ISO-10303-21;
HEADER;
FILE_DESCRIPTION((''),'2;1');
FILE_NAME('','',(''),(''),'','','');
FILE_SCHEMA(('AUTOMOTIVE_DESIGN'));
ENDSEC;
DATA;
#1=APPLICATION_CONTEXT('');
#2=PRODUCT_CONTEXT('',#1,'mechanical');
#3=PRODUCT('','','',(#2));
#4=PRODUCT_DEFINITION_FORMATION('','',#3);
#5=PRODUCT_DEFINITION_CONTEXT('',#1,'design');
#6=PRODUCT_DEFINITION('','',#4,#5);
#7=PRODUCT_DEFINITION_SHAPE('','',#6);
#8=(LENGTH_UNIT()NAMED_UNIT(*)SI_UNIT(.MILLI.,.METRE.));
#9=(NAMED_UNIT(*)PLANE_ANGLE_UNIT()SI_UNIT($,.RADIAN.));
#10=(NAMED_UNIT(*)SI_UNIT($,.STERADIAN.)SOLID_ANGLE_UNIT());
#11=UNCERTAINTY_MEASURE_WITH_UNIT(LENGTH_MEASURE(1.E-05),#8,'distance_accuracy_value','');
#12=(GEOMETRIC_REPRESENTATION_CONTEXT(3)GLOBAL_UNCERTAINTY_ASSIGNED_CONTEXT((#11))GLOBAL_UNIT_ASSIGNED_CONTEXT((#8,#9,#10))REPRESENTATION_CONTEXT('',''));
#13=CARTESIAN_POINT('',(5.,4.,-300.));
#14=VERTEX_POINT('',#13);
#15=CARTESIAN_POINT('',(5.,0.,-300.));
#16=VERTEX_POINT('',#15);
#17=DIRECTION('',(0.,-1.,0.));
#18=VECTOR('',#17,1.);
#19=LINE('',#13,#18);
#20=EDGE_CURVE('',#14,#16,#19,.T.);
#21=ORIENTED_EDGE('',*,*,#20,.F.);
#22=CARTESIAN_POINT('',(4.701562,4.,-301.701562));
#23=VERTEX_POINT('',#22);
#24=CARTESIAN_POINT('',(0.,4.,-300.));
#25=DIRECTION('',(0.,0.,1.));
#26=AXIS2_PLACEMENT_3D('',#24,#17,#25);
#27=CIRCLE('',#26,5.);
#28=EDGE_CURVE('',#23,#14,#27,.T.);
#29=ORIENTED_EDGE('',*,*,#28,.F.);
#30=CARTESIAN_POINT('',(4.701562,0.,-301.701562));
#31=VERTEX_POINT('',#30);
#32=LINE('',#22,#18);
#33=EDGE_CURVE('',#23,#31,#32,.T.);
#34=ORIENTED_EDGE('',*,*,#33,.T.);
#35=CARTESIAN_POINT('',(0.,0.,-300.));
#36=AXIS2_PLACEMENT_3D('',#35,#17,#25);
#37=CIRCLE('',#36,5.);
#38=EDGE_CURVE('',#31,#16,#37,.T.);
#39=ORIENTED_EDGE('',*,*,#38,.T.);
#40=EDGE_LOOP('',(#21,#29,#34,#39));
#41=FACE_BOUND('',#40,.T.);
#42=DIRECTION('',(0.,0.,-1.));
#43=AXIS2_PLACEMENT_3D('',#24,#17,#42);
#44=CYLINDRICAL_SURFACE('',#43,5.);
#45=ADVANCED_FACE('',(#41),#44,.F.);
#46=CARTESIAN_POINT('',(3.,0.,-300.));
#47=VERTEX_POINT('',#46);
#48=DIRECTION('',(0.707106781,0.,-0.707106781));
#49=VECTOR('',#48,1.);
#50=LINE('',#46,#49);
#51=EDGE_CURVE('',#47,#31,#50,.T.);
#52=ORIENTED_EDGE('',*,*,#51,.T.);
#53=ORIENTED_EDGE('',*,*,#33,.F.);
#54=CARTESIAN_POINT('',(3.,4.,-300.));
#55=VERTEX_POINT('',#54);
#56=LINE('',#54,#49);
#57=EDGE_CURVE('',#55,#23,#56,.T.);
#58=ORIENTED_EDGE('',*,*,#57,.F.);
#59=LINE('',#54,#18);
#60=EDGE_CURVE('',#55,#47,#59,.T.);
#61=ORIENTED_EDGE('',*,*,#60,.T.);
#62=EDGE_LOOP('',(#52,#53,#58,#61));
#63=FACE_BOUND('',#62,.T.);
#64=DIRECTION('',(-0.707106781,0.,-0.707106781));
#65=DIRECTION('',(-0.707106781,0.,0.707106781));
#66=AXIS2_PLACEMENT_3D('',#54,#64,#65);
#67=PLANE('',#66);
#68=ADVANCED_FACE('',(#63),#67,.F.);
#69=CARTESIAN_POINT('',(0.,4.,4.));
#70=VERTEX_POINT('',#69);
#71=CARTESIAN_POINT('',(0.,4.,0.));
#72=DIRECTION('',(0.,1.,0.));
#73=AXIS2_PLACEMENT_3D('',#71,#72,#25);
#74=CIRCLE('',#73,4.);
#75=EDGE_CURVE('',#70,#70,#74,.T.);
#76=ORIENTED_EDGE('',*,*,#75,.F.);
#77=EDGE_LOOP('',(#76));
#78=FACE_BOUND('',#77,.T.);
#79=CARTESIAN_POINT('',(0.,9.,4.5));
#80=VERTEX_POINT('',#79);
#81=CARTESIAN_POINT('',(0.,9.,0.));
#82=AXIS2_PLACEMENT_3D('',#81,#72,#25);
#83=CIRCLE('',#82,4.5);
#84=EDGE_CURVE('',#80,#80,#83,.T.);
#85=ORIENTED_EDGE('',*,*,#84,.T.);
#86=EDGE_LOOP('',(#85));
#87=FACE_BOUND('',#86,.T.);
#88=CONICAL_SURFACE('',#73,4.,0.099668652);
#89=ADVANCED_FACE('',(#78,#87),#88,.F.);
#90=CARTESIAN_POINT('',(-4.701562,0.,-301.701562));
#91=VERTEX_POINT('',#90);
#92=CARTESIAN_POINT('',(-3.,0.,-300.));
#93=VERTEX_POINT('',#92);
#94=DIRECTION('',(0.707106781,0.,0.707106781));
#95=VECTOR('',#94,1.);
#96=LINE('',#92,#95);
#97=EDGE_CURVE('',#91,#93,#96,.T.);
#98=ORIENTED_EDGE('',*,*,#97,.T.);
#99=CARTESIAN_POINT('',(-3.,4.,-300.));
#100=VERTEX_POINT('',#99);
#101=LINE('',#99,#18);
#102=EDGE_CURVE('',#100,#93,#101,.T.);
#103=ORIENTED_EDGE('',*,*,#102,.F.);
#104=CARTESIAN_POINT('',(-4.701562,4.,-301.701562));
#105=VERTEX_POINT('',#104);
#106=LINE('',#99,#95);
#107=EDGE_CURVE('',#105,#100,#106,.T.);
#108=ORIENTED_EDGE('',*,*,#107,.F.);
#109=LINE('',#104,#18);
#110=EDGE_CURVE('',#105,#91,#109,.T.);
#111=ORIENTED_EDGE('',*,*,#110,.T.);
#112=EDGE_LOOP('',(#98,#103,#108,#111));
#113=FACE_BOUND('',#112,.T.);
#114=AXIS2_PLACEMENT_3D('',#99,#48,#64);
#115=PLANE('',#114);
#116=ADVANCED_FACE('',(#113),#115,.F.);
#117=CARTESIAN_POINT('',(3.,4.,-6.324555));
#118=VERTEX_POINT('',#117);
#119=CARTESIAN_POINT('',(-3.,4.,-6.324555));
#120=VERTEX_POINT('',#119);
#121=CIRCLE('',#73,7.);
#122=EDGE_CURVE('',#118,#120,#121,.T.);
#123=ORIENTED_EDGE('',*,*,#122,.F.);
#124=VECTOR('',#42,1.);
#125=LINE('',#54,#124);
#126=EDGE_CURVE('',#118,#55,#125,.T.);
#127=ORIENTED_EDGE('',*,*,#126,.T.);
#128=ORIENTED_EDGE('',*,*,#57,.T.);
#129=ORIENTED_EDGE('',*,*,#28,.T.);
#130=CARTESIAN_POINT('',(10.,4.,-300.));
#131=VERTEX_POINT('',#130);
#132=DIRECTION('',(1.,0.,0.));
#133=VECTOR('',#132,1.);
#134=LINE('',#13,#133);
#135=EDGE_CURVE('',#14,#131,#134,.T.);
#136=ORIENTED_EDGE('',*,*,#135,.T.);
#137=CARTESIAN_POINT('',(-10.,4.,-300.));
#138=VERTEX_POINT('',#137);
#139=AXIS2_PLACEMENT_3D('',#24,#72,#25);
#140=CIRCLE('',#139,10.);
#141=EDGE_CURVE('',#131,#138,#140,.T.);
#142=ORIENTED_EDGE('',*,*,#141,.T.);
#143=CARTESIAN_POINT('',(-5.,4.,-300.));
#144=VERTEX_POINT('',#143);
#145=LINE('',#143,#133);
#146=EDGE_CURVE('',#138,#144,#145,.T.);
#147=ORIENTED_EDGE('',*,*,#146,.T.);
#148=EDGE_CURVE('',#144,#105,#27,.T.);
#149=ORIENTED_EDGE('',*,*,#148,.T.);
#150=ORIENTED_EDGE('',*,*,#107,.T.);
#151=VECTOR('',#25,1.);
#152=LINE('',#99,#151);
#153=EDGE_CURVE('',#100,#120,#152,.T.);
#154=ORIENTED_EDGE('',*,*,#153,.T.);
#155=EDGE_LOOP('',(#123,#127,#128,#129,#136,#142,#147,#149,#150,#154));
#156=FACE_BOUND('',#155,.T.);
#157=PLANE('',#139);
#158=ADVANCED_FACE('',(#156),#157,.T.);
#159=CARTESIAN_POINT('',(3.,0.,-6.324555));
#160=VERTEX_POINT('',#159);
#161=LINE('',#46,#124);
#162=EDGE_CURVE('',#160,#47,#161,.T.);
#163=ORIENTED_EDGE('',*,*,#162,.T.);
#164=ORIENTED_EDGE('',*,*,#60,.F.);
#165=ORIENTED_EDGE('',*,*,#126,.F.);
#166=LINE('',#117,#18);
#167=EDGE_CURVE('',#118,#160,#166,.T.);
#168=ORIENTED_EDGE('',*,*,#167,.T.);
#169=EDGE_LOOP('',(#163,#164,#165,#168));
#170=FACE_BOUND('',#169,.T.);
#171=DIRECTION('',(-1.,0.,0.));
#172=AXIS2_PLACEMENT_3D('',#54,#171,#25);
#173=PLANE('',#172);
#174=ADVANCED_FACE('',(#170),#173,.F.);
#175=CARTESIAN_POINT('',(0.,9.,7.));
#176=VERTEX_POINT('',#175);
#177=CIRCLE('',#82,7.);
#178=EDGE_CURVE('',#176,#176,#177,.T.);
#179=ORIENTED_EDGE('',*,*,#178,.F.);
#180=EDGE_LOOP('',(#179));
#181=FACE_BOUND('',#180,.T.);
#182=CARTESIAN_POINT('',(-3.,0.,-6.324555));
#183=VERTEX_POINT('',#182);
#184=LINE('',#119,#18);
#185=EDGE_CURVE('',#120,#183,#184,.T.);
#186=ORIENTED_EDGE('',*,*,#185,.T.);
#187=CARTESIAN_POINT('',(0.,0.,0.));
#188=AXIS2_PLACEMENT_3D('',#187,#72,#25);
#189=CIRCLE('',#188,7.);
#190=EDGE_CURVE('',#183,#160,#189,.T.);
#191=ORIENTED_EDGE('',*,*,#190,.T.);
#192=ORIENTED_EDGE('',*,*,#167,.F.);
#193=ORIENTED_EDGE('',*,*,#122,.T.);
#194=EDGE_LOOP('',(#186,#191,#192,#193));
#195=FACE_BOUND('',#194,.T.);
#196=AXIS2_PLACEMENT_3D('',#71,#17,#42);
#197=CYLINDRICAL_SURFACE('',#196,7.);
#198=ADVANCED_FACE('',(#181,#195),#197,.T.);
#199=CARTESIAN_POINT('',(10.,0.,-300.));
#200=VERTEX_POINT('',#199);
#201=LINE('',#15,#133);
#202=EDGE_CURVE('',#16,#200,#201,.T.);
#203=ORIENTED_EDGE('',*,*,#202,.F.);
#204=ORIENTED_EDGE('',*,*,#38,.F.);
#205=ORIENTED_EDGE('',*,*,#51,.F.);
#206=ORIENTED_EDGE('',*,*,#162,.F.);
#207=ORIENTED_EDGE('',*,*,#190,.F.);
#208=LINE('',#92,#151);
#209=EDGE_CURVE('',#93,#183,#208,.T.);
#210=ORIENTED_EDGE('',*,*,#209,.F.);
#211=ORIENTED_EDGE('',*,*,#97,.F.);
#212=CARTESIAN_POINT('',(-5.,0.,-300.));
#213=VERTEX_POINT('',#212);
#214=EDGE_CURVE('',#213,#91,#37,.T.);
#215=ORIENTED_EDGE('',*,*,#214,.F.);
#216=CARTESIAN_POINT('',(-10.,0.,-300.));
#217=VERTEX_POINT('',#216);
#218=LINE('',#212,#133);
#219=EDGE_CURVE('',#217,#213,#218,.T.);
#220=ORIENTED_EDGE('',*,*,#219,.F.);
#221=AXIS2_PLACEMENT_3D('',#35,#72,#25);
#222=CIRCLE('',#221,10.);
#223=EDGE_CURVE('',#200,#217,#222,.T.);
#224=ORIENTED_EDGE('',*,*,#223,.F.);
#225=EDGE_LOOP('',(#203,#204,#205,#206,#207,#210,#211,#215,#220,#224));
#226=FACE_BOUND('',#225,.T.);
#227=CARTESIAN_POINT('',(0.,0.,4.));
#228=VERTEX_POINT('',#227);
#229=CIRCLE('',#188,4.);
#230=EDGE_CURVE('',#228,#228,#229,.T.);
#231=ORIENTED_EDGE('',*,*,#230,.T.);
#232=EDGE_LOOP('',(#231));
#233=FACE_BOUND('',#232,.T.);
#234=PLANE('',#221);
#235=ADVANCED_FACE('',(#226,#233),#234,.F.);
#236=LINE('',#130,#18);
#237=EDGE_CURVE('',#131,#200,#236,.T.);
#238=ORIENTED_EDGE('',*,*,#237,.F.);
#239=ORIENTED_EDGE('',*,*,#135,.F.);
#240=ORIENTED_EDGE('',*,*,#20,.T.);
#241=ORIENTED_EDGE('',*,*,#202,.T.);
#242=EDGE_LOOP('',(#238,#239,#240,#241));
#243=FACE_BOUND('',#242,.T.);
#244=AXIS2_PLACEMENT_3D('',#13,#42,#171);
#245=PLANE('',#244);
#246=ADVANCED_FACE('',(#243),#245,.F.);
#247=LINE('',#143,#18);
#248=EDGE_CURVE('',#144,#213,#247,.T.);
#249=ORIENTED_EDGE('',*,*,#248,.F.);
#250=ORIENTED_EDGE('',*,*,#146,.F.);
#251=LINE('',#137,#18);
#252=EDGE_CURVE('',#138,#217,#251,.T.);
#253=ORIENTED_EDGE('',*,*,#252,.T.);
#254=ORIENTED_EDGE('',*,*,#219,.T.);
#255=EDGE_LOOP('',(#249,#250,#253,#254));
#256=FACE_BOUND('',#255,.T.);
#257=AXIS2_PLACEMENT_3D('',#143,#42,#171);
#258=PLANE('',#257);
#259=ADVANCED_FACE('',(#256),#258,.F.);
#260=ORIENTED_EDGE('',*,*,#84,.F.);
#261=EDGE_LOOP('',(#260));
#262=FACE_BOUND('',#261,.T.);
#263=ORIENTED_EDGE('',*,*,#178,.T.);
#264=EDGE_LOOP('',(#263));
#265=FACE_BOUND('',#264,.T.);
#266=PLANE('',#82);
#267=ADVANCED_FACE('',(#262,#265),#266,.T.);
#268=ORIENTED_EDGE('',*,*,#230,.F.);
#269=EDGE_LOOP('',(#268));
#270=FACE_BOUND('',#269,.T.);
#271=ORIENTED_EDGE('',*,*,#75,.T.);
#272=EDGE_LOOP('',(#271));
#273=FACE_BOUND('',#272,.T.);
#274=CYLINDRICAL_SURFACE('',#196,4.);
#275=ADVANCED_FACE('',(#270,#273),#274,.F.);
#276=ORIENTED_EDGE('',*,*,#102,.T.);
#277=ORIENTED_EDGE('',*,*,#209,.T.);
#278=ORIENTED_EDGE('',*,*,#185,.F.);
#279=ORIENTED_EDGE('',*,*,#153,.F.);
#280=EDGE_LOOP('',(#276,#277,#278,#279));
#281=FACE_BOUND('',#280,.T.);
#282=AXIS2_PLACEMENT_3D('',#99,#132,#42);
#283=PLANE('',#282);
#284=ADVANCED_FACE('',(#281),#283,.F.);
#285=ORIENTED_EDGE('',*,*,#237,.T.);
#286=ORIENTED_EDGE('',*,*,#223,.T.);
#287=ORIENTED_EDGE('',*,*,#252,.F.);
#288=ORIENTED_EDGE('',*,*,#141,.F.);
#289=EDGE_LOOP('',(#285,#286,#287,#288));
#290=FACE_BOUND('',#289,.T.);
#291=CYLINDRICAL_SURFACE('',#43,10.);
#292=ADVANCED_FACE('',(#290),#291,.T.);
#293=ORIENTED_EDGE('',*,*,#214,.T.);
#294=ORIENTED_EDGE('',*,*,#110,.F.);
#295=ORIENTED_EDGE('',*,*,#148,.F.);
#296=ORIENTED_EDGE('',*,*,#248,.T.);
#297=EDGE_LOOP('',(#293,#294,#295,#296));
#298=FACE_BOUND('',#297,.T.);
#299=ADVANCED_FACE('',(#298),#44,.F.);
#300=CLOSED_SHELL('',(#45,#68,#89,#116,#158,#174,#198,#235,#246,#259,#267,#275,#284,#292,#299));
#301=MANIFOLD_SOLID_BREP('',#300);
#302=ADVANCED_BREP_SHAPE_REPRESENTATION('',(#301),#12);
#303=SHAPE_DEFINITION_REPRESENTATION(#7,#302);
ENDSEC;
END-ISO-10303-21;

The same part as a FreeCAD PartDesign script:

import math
import FreeCAD as App
import Part
import Sketcher
Q = App.Units.Quantity

doc = App.newDocument("Part")
body = doc.addObject("PartDesign::Body", "Body")

sketch1 = body.newObject("Sketcher::SketchObject", "Sketch")
sketch1.AttachmentSupport = (doc.getObject("XZ_Plane"), [""])
sketch1.MapMode = "FlatFace"
sketch1.addGeometry(Part.LineSegment(App.Vector(-3, -300, 0), App.Vector(-3, -6.3, 0)), False)
sketch1.addGeometry(Part.ArcOfCircle(Part.Circle(App.Vector(0, 0, 0), App.Vector(0, 0, 1), 7), math.radians(-65), math.radians(245)), False)
sketch1.addGeometry(Part.LineSegment(App.Vector(3, -6.3, 0), App.Vector(3, -300, 0)), False)
sketch1.addGeometry(Part.LineSegment(App.Vector(3, -300, 0), App.Vector(4.7, -301.7, 0)), False)
sketch1.addGeometry(Part.ArcOfCircle(Part.Circle(App.Vector(0, -300, 0), App.Vector(0, 0, 1), 5), math.radians(-19.9), math.radians(0)), False)
sketch1.addGeometry(Part.LineSegment(App.Vector(5, -300, 0), App.Vector(10, -300, 0)), False)
sketch1.addGeometry(Part.ArcOfCircle(Part.Circle(App.Vector(0, -300, 0), App.Vector(0, 0, 1), 10), math.radians(180), math.radians(360)), False)
sketch1.addGeometry(Part.LineSegment(App.Vector(-10, -300, 0), App.Vector(-5, -300, 0)), False)
sketch1.addGeometry(Part.ArcOfCircle(Part.Circle(App.Vector(0, -300, 0), App.Vector(0, 0, 1), 5), math.radians(180), math.radians(199.9)), False)
sketch1.addGeometry(Part.LineSegment(App.Vector(-4.7, -301.7, 0), App.Vector(-3, -300, 0)), False)
sketch1.addGeometry(Part.Circle(App.Vector(0, 0, 0), App.Vector(0, 0, 1), 4), False)
sketch1.addConstraint(Sketcher.Constraint("Coincident", 0, 2, 1, 2))
sketch1.addConstraint(Sketcher.Constraint("Coincident", 1, 1, 2, 1))
sketch1.addConstraint(Sketcher.Constraint("Coincident", 2, 2, 3, 1))
sketch1.addConstraint(Sketcher.Constraint("Coincident", 3, 2, 4, 1))
sketch1.addConstraint(Sketcher.Constraint("Coincident", 4, 2, 5, 1))
sketch1.addConstraint(Sketcher.Constraint("Coincident", 5, 2, 6, 2))
sketch1.addConstraint(Sketcher.Constraint("Coincident", 6, 1, 7, 1))
sketch1.addConstraint(Sketcher.Constraint("Coincident", 7, 2, 8, 1))
sketch1.addConstraint(Sketcher.Constraint("Coincident", 8, 2, 9, 1))
sketch1.addConstraint(Sketcher.Constraint("Coincident", 9, 2, 0, 1))
sketch1.addConstraint(Sketcher.Constraint("Vertical", 0))
sketch1.addConstraint(Sketcher.Constraint("Vertical", 2))
sketch1.addConstraint(Sketcher.Constraint("Horizontal", 5))
sketch1.addConstraint(Sketcher.Constraint("Horizontal", 7))
sketch1.addConstraint(Sketcher.Constraint("Coincident", 1, 3, -1, 1))
sketch1.addConstraint(Sketcher.Constraint("Coincident", 10, 3, -1, 1))
sketch1.addConstraint(Sketcher.Constraint("Coincident", 6, 3, 4, 3))
sketch1.addConstraint(Sketcher.Constraint("Coincident", 8, 3, 4, 3))
sketch1.addConstraint(Sketcher.Constraint("Equal", 4, 8))
sketch1.addConstraint(Sketcher.Constraint("Symmetric", 5, 2, 6, 1, -2))
sketch1.addConstraint(Sketcher.Constraint("Symmetric", 2, 2, 9, 2, -2))
sketch1.addConstraint(Sketcher.Constraint("Perpendicular", 3, 9))
sketch1.addConstraint(Sketcher.Constraint("Horizontal", 8, 3, 2, 2))
sketch1.addConstraint(Sketcher.Constraint("Horizontal", 2, 2, 4, 2))
sketch1.addConstraint(Sketcher.Constraint("Horizontal", 3, 2, 8, 2))
sketch1.addConstraint(Sketcher.Constraint("Diameter", 10, Q("8 mm")))
sketch1.addConstraint(Sketcher.Constraint("Radius", 1, Q("7 mm")))
sketch1.addConstraint(Sketcher.Constraint("Radius", 4, Q("5 mm")))
sketch1.addConstraint(Sketcher.Constraint("Radius", 6, Q("10 mm")))
sketch1.addConstraint(Sketcher.Constraint("DistanceY", 4, 3, -1, 1, Q("300 mm")))
sketch1.addConstraint(Sketcher.Constraint("DistanceX", 0, 2, -1, 1, Q("3 mm")))
pad1 = body.newObject("PartDesign::Pad", "Pad")
pad1.Profile = sketch1
pad1.Length = 4
pad1.Reversed = True

sketch2 = body.newObject("Sketcher::SketchObject", "Sketch001")
sketch2.AttachmentSupport = (doc.getObject("XZ_Plane"), [""])
sketch2.MapMode = "FlatFace"
sketch2.AttachmentOffset = App.Placement(App.Vector(0, 0, -4), App.Rotation())
sketch2.addGeometry(Part.Circle(App.Vector(0, 0, 0), App.Vector(0, 0, 1), 7), False)
sketch2.addConstraint(Sketcher.Constraint("Coincident", 0, 3, -1, 1))
sketch2.addConstraint(Sketcher.Constraint("Diameter", 0, Q("14 mm")))
pad2 = body.newObject("PartDesign::Pad", "Pad001")
pad2.Profile = sketch2
pad2.Length = 5
pad2.Reversed = True

sketch3 = body.newObject("Sketcher::SketchObject", "Sketch002")
sketch3.AttachmentSupport = (doc.getObject("XZ_Plane"), [""])
sketch3.MapMode = "FlatFace"
sketch3.AttachmentOffset = App.Placement(App.Vector(0, 0, -9), App.Rotation())
sketch3.addGeometry(Part.Circle(App.Vector(0, 0, 0), App.Vector(0, 0, 1), 4.5), False)
sketch3.addConstraint(Sketcher.Constraint("Coincident", 0, 3, -1, 1))
sketch3.addConstraint(Sketcher.Constraint("Diameter", 0, Q("9 mm")))

sketch4 = body.newObject("Sketcher::SketchObject", "Sketch003")
sketch4.AttachmentSupport = (doc.getObject("XZ_Plane"), [""])
sketch4.MapMode = "FlatFace"
sketch4.AttachmentOffset = App.Placement(App.Vector(0, 0, -4), App.Rotation())
sketch4.addGeometry(Part.Circle(App.Vector(0, 0, 0), App.Vector(0, 0, 1), 4), False)
sketch4.addConstraint(Sketcher.Constraint("Coincident", 0, 3, -1, 1))
sketch4.addConstraint(Sketcher.Constraint("Diameter", 0, Q("8 mm")))

subtractiveloft = body.newObject("PartDesign::SubtractiveLoft", "SubtractiveLoft")
subtractiveloft.Profile = sketch3
subtractiveloft.Sections = [sketch4]

doc.recompute()
